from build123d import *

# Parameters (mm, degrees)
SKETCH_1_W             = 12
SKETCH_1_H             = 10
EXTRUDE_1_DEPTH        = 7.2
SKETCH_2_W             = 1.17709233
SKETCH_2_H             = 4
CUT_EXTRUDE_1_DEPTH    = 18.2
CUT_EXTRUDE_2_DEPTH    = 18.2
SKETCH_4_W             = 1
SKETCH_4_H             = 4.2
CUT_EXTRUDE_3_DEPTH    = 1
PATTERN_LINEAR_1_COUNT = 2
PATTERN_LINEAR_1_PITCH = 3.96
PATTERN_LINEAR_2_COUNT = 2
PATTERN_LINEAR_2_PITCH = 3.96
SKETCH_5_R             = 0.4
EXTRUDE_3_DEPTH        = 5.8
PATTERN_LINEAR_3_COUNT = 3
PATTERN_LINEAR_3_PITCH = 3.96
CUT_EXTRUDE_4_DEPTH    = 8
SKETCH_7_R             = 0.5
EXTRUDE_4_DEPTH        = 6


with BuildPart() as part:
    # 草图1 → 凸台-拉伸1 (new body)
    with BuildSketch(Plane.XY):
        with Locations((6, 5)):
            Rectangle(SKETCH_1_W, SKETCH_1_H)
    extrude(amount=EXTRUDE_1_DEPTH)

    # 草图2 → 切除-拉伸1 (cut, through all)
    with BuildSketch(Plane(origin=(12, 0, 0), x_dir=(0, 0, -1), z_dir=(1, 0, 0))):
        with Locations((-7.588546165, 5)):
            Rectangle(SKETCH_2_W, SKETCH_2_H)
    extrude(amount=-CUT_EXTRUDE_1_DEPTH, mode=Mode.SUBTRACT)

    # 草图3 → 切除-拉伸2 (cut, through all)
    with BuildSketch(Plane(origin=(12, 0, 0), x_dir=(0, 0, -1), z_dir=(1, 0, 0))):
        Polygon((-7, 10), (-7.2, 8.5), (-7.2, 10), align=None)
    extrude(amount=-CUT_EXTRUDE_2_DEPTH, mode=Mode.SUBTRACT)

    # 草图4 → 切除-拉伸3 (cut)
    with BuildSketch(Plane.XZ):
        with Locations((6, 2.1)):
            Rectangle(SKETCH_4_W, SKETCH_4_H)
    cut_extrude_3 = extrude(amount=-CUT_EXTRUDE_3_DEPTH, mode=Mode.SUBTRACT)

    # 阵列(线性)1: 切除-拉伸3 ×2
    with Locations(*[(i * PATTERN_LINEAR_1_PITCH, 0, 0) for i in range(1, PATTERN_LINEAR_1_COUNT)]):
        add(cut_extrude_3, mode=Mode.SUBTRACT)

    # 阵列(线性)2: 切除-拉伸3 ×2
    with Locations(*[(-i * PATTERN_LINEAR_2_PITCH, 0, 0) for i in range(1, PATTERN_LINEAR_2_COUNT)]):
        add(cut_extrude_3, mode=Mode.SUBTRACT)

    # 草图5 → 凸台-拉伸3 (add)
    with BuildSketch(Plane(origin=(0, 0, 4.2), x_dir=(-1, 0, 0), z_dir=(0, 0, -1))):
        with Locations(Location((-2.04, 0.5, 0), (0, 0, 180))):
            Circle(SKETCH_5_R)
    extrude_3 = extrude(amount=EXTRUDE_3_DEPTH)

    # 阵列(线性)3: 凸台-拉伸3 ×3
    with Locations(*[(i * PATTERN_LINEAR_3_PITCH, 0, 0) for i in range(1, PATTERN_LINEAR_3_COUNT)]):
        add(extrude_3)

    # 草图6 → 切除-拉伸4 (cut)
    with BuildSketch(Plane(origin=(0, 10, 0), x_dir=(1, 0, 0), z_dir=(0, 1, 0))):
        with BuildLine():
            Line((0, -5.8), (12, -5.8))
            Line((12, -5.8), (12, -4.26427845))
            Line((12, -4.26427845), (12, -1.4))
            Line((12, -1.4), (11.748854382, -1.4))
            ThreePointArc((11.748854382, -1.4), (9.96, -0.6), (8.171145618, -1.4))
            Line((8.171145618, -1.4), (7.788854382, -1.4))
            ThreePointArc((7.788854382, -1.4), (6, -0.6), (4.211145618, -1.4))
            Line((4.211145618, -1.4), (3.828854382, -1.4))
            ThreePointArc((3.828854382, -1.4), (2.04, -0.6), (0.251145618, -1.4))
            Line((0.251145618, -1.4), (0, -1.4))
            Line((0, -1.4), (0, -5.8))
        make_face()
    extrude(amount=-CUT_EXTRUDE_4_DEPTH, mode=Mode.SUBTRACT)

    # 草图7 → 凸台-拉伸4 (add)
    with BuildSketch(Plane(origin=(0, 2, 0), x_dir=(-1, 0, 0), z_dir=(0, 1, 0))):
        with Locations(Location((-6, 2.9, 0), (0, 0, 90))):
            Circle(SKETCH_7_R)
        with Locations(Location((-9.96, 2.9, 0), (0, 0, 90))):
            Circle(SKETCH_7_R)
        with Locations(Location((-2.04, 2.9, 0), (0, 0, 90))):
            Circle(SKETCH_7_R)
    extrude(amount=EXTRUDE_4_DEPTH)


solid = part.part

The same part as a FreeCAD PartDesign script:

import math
import FreeCAD as App
import Part
import Sketcher

V = App.Vector
Q = App.Units.Quantity


def add_polygon(sketch, points):
    """Adds a closed chain of lines whose ends are joined by coincident constraints."""
    first, n = sketch.GeometryCount, len(points)
    for a, b in zip(points, points[1:] + points[:1]):
        sketch.addGeometry(Part.LineSegment(App.Vector(*a, 0), App.Vector(*b, 0)), False)
    for i in range(n):
        sketch.addConstraint(Sketcher.Constraint("Coincident", first + i, 2, first + (i + 1) % n, 1))

doc = App.newDocument("Part")
params = doc.addObject("Spreadsheet::Sheet", "Params")
for row, (alias, value) in enumerate([
    ("sketch1_width", "12 mm"),
    ("sketch1_height", "10 mm"),
    ("pad1_length", "7.2 mm"),
    ("sketch2_width", "4 mm"),
    ("sketch3_width", "1.5 mm"),
    ("sketch3_height", "0.2 mm"),
    ("sketch4_width", "1 mm"),
    ("sketch4_height", "4.2 mm"),
    ("pocket3_length", "1 mm"),
    ("linearpattern_pitch", "3.96 mm"),
    ("linearpattern2_pitch", "3.96 mm"),
    ("sketch5_diameter", "0.8 mm"),
    ("pad2_length", "5.8 mm"),
    ("linearpattern3_pitch", "3.96 mm"),
    ("sketch6_radius", "2.4 mm"),
    ("sketch6_width", "12 mm"),
    ("sketch6_height", "4.4 mm"),
    ("pocket4_length", "8 mm"),
    ("sketch7_diameter", "1 mm"),
    ("pad3_length", "6 mm"),
], start=1):
    params.set(f"A{row}", alias)
    params.set(f"B{row}", "=" + value)
    params.setAlias(f"B{row}", alias)

body = doc.addObject("PartDesign::Body", "Body")

# Sketch on XY plane
sketch1 = body.newObject("Sketcher::SketchObject", "Sketch")
sketch1.AttachmentSupport = (doc.getObject("XY_Plane"), [""])
sketch1.MapMode = "FlatFace"
add_polygon(sketch1, [(0, 10), (0, 0), (12, 0), (12, 10)])  # lines 0-3
sketch1.addConstraint(Sketcher.Constraint("Vertical", 0))
sketch1.addConstraint(Sketcher.Constraint("Horizontal", 1))
sketch1.addConstraint(Sketcher.Constraint("Vertical", 2))
sketch1.addConstraint(Sketcher.Constraint("Horizontal", 3))
sketch1.addConstraint(Sketcher.Constraint("Coincident", 0, 2, -1, 1))
sketch1.addConstraint(Sketcher.Constraint("DistanceX", 1, 1, 1, 2, Q("12 mm")))
sketch1.addConstraint(Sketcher.Constraint("DistanceY", 0, 2, 0, 1, Q("10 mm")))
sketch1.setExpression("Constraints[9]", "Params.sketch1_width")
sketch1.setExpression("Constraints[10]", "Params.sketch1_height")
pad1 = body.newObject("PartDesign::Pad", "Pad")
pad1.Profile = sketch1
pad1.setExpression("Length", "Params.pad1_length")

# Sketch on YZ plane
sketch2 = body.newObject("Sketcher::SketchObject", "Sketch001")
sketch2.AttachmentSupport = (doc.getObject("YZ_Plane"), [""])
sketch2.MapMode = "FlatFace"
sketch2.AttachmentOffset = App.Placement(V(0, 0, 12), App.Rotation())
add_polygon(sketch2, [(7, 8.2), (3, 8.2), (3, 7), (7, 7)])  # lines 0-3
sketch2.addConstraint(Sketcher.Constraint("Horizontal", 0))
sketch2.addConstraint(Sketcher.Constraint("Vertical", 1))
sketch2.addConstraint(Sketcher.Constraint("Horizontal", 2))
sketch2.addConstraint(Sketcher.Constraint("Vertical", 3))
sketch2.addConstraint(Sketcher.Constraint("DistanceX", 0, 2, 0, 1, Q("4 mm")))
sketch2.addConstraint(Sketcher.Constraint("DistanceX", -1, 1, 0, 2, Q("3 mm")))
sketch2.addConstraint(Sketcher.Constraint("DistanceY", -1, 1, 1, 2, Q("7 mm")))
sketch2.addConstraint(Sketcher.Constraint("DistanceY", 1, 2, 1, 1, Q("1.177092 mm")))
sketch2.setExpression("Constraints[8]", "Params.sketch2_width")
pocket1 = body.newObject("PartDesign::Pocket", "Pocket")
pocket1.Profile = sketch2
pocket1.Type = "ThroughAll"

# Sketch on YZ plane
sketch3 = body.newObject("Sketcher::SketchObject", "Sketch002")
sketch3.AttachmentSupport = (doc.getObject("YZ_Plane"), [""])
sketch3.MapMode = "FlatFace"
sketch3.AttachmentOffset = App.Placement(V(0, 0, 12), App.Rotation())
add_polygon(sketch3, [(8.5, 7.2), (10, 7), (10, 7.2)])  # lines 0-2
sketch3.addConstraint(Sketcher.Constraint("Vertical", 1))
sketch3.addConstraint(Sketcher.Constraint("Horizontal", 2))
sketch3.addConstraint(Sketcher.Constraint("DistanceX", 2, 2, 2, 1, Q("1.5 mm")))
sketch3.addConstraint(Sketcher.Constraint("DistanceY", 1, 1, 1, 2, Q("0.2 mm")))
sketch3.addConstraint(Sketcher.Constraint("DistanceX", -1, 1, 0, 2, Q("10 mm")))
sketch3.addConstraint(Sketcher.Constraint("DistanceY", -1, 1, 0, 2, Q("7 mm")))
sketch3.setExpression("Constraints[5]", "Params.sketch3_width")
sketch3.setExpression("Constraints[6]", "Params.sketch3_height")
pocket2 = body.newObject("PartDesign::Pocket", "Pocket001")
pocket2.Profile = sketch3
pocket2.Type = "ThroughAll"

# Sketch on XZ plane
sketch4 = body.newObject("Sketcher::SketchObject", "Sketch003")
sketch4.AttachmentSupport = (doc.getObject("XZ_Plane"), [""])
sketch4.MapMode = "FlatFace"
add_polygon(sketch4, [(5.5, 4.2), (5.5, 0), (6.5, 0), (6.5, 4.2)])  # lines 0-3
sketch4.addConstraint(Sketcher.Constraint("Vertical", 0))
sketch4.addConstraint(Sketcher.Constraint("Horizontal", 1))
sketch4.addConstraint(Sketcher.Constraint("Vertical", 2))
sketch4.addConstraint(Sketcher.Constraint("Horizontal", 3))
sketch4.addConstraint(Sketcher.Constraint("PointOnObject", 0, 2, -1))
sketch4.addConstraint(Sketcher.Constraint("DistanceX", 1, 1, 1, 2, Q("1 mm")))
sketch4.addConstraint(Sketcher.Constraint("DistanceY", 0, 2, 0, 1, Q("4.2 mm")))
sketch4.addConstraint(Sketcher.Constraint("DistanceX", -1, 1, 0, 2, Q("5.5 mm")))
sketch4.setExpression("Constraints[9]", "Params.sketch4_width")
sketch4.setExpression("Constraints[10]", "Params.sketch4_height")
pocket3 = body.newObject("PartDesign::Pocket", "Pocket002")
pocket3.Profile = sketch4
pocket3.setExpression("Length", "Params.pocket3_length")
doc.recompute()

linearpattern = body.newObject("PartDesign::LinearPattern", "LinearPattern")
linearpattern.Originals = [pocket3]
linearpattern.Direction = (doc.getObject("X_Axis"), [""])
linearpattern.Mode = "offset"
linearpattern.setExpression("Offset", "Params.linearpattern_pitch")
linearpattern.Occurrences = 2
body.Tip = linearpattern
doc.recompute()

linearpattern2 = body.newObject("PartDesign::LinearPattern", "LinearPattern001")
linearpattern2.Originals = [pocket3]
linearpattern2.Direction = (doc.getObject("X_Axis"), [""])
linearpattern2.Mode = "offset"
linearpattern2.setExpression("Offset", "Params.linearpattern2_pitch")
linearpattern2.Occurrences = 2
linearpattern2.Reversed = True
body.Tip = linearpattern2

# Sketch on XY plane
sketch5 = body.newObject("Sketcher::SketchObject", "Sketch004")
sketch5.AttachmentSupport = (doc.getObject("XY_Plane"), [""])
sketch5.MapMode = "FlatFace"
sketch5.AttachmentOffset = App.Placement(V(0, 0, 4.2), App.Rotation())
sketch5.addGeometry(Part.Circle(V(2.04, 0.5, 0), V(0, 0, 1), 0.4), False)
sketch5.addConstraint(Sketcher.Constraint("Diameter", 0, Q("0.8 mm")))
sketch5.addConstraint(Sketcher.Constraint("DistanceY", -1, 1, 0, 3, Q("0.5 mm")))
sketch5.addConstraint(Sketcher.Constraint("DistanceX", -1, 1, 0, 3, Q("2.04 mm")))
sketch5.setExpression("Constraints[0]", "Params.sketch5_diameter")
pad2 = body.newObject("PartDesign::Pad", "Pad001")
pad2.Profile = sketch5
pad2.setExpression("Length", "Params.pad2_length")
pad2.Reversed = True
doc.recompute()

linearpattern3 = body.newObject("PartDesign::LinearPattern", "LinearPattern002")
linearpattern3.Originals = [pad2]
linearpattern3.Direction = (doc.getObject("X_Axis"), [""])
linearpattern3.Mode = "offset"
linearpattern3.setExpression("Offset", "Params.linearpattern3_pitch")
linearpattern3.Occurrences = 3
body.Tip = linearpattern3

# Sketch on XZ plane
sketch6 = body.newObject("Sketcher::SketchObject", "Sketch005")
sketch6.AttachmentSupport = (doc.getObject("XZ_Plane"), [""])
sketch6.MapMode = "FlatFace"
sketch6.AttachmentOffset = App.Placement(V(0, 0, -10), App.Rotation())
sketch6.addGeometry(Part.LineSegment(V(0, 5.8, 0), V(12, 5.8, 0)), False)
sketch6.addGeometry(Part.LineSegment(V(12, 5.8, 0), V(12, 1.4, 0)), False)
sketch6.addGeometry(Part.LineSegment(V(12, 1.4, 0), V(11.75, 1.4, 0)), False)
sketch6.addGeometry(Part.ArcOfCircle(Part.Circle(V(9.96, 3, 0), V(0, 0, 1), 2.4), math.radians(-138), math.radians(-42)), False)
sketch6.addGeometry(Part.LineSegment(V(8.17, 1.4, 0), V(7.79, 1.4, 0)), False)
sketch6.addGeometry(Part.ArcOfCircle(Part.Circle(V(6, 3, 0), V(0, 0, 1), 2.4), math.radians(-138), math.radians(-42)), False)
sketch6.addGeometry(Part.LineSegment(V(4.21, 1.4, 0), V(3.83, 1.4, 0)), False)
sketch6.addGeometry(Part.ArcOfCircle(Part.Circle(V(2.04, 3, 0), V(0, 0, 1), 2.4), math.radians(-138), math.radians(-42)), False)
sketch6.addGeometry(Part.LineSegment(V(0.25, 1.4, 0), V(0, 1.4, 0)), False)
sketch6.addGeometry(Part.LineSegment(V(0, 1.4, 0), V(0, 5.8, 0)), False)
sketch6.addConstraint(Sketcher.Constraint("Coincident", 0, 2, 1, 1))
sketch6.addConstraint(Sketcher.Constraint("Coincident", 1, 2, 2, 1))
sketch6.addConstraint(Sketcher.Constraint("Coincident", 2, 2, 3, 2))
sketch6.addConstraint(Sketcher.Constraint("Coincident", 3, 1, 4, 1))
sketch6.addConstraint(Sketcher.Constraint("Coincident", 4, 2, 5, 2))
sketch6.addConstraint(Sketcher.Constraint("Coincident", 5, 1, 6, 1))
sketch6.addConstraint(Sketcher.Constraint("Coincident", 6, 2, 7, 2))
sketch6.addConstraint(Sketcher.Constraint("Coincident", 7, 1, 8, 1))
sketch6.addConstraint(Sketcher.Constraint("Coincident", 8, 2, 9, 1))
sketch6.addConstraint(Sketcher.Constraint("Coincident", 9, 2, 0, 1))
sketch6.addConstraint(Sketcher.Constraint("Horizontal", 0))
sketch6.addConstraint(Sketcher.Constraint("Vertical", 1))
sketch6.addConstraint(Sketcher.Constraint("Horizontal", 2))
sketch6.addConstraint(Sketcher.Constraint("Horizontal", 4))
sketch6.addConstraint(Sketcher.Constraint("Horizontal", 6))
sketch6.addConstraint(Sketcher.Constraint("Horizontal", 8))
sketch6.addConstraint(Sketcher.Constraint("Vertical", 9))
sketch6.addConstraint(Sketcher.Constraint("Equal", 3, 5))
sketch6.addConstraint(Sketcher.Constraint("Equal", 5, 7))
sketch6.addConstraint(Sketcher.Constraint("PointOnObject", 8, 2, -2))
sketch6.addConstraint(Sketcher.Constraint("Horizontal", 3, 3, 5, 3))
sketch6.addConstraint(Sketcher.Constraint("Horizontal", 5, 3, 7, 3))
sketch6.addConstraint(Sketcher.Constraint("Horizontal", 2, 2, 3, 1))
sketch6.addConstraint(Sketcher.Constraint("Horizontal", 4, 2, 5, 1))
sketch6.addConstraint(Sketcher.Constraint("Horizontal", 6, 2, 7, 1))
sketch6.addConstraint(Sketcher.Constraint("Equal", 4, 6))
sketch6.addConstraint(Sketcher.Constraint("Equal", 2, 8))
sketch6.addConstraint(Sketcher.Constraint("Radius", 3, Q("2.4 mm")))
sketch6.addConstraint(Sketcher.Constraint("DistanceX", 0, 1, 0, 2, Q("12 mm")))
sketch6.addConstraint(Sketcher.Constraint("DistanceY", 1, 2, 1, 1, Q("4.4 mm")))
sketch6.addConstraint(Sketcher.Constraint("DistanceY", -1, 1, 3, 3, Q("3 mm")))
sketch6.addConstraint(Sketcher.Constraint("DistanceY", -1, 1, 0, 2, Q("5.8 mm")))
sketch6.addConstraint(Sketcher.Constraint("DistanceX", -1, 1, 3, 3, Q("9.96 mm")))
sketch6.setExpression("Constraints[27]", "Params.sketch6_radius")
sketch6.setExpression("Constraints[28]", "Params.sketch6_width")
sketch6.setExpression("Constraints[29]", "Params.sketch6_height")
pocket4 = body.newObject("PartDesign::Pocket", "Pocket003")
pocket4.Profile = sketch6
pocket4.setExpression("Length", "Params.pocket4_length")
pocket4.Reversed = True

# Sketch on XZ plane
sketch7 = body.newObject("Sketcher::SketchObject", "Sketch006")
sketch7.AttachmentSupport = (doc.getObject("XZ_Plane"), [""])
sketch7.MapMode = "FlatFace"
sketch7.AttachmentOffset = App.Placement(V(0, 0, -2), App.Rotation())
sketch7.addGeometry(Part.Circle(V(6, 2.9, 0), V(0, 0, 1), 0.5), False)
sketch7.addGeometry(Part.Circle(V(10, 2.9, 0), V(0, 0, 1), 0.5), False)
sketch7.addGeometry(Part.Circle(V(2, 2.9, 0), V(0, 0, 1), 0.5), False)
sketch7.addConstraint(Sketcher.Constraint("Equal", 0, 1))
sketch7.addConstraint(Sketcher.Constraint("Equal", 1, 2))
sketch7.addConstraint(Sketcher.Constraint("Horizontal", 0, 3, 1, 3))
sketch7.addConstraint(Sketcher.Constraint("Horizontal", 1, 3, 2, 3))
sketch7.addConstraint(Sketcher.Constraint("Diameter", 0, Q("1 mm")))
sketch7.addConstraint(Sketcher.Constraint("DistanceX", -1, 1, 0, 3, Q("6 mm")))
sketch7.addConstraint(Sketcher.Constraint("DistanceY", -1, 1, 0, 3, Q("2.9 mm")))
sketch7.addConstraint(Sketcher.Constraint("DistanceX", -1, 1, 1, 3, Q("9.96 mm")))
sketch7.addConstraint(Sketcher.Constraint("DistanceX", -1, 1, 2, 3, Q("2.04 mm")))
sketch7.setExpression("Constraints[4]", "Params.sketch7_diameter")
pad3 = body.newObject("PartDesign::Pad", "Pad002")
pad3.Profile = sketch7
pad3.setExpression("Length", "Params.pad3_length")
pad3.Reversed = True

doc.recompute()
